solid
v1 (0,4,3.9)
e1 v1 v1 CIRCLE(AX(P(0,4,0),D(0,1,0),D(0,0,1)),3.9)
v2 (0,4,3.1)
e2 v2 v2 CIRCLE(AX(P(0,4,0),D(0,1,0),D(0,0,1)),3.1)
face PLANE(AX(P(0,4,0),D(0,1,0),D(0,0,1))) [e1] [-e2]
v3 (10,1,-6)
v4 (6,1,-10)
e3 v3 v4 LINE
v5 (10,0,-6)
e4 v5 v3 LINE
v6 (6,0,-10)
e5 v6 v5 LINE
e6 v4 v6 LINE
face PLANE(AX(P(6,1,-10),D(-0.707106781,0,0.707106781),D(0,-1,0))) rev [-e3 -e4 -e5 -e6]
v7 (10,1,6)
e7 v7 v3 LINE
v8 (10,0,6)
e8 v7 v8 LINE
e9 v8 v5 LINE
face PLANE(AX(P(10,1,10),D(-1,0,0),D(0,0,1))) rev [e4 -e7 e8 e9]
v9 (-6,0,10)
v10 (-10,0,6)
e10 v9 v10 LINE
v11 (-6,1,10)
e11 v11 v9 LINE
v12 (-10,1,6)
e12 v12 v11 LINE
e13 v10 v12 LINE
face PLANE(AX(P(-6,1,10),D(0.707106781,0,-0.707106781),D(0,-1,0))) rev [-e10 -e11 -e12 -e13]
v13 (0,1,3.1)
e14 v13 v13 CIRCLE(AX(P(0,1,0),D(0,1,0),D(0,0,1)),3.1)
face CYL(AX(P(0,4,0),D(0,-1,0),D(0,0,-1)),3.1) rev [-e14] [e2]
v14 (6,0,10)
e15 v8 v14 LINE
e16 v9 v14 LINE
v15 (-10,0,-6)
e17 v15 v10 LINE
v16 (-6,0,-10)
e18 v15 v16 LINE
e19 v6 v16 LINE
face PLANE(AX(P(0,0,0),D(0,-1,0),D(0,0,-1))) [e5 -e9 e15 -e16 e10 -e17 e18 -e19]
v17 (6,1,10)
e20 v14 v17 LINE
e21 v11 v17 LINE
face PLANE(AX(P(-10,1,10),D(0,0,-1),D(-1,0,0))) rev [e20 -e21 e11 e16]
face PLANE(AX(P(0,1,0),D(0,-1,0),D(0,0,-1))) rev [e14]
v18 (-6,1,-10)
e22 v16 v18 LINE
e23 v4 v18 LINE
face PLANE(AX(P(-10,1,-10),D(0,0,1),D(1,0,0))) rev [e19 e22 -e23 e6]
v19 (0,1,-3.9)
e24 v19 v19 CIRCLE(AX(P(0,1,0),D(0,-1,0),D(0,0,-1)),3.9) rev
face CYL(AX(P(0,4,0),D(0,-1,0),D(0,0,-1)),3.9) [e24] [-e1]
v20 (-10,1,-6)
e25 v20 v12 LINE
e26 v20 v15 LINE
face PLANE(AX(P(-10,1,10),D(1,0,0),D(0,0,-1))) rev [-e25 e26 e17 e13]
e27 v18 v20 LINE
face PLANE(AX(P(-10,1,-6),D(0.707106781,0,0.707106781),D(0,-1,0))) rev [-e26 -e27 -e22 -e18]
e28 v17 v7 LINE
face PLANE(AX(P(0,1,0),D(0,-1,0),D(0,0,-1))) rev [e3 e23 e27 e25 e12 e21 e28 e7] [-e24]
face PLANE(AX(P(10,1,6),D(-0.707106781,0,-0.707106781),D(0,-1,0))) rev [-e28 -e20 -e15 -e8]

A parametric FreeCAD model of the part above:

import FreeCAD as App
import Part
import Sketcher

V = App.Vector


def edges_at(feature, points):
    """Names of the edges that pass closest to the given points."""
    edges = feature.Shape.Edges
    near = lambda p: min(range(len(edges)), key=lambda i: edges[i].distToShape(Part.Vertex(*p))[0])
    return sorted({f"Edge{near(p) + 1}" for p in points})


def add_polygon(sketch, points):
    """Adds a closed chain of lines whose ends are joined by coincident constraints."""
    first, n = sketch.GeometryCount, len(points)
    for a, b in zip(points, points[1:] + points[:1]):
        sketch.addGeometry(Part.LineSegment(App.Vector(*a, 0), App.Vector(*b, 0)), False)
    for i in range(n):
        sketch.addConstraint(Sketcher.Constraint("Coincident", first + i, 2, first + (i + 1) % n, 1))

doc = App.newDocument("Part")
body = doc.addObject("PartDesign::Body", "Body")

sketch1 = body.newObject("Sketcher::SketchObject", "Sketch")
sketch1.AttachmentSupport = (doc.getObject("XZ_Plane"), [""])
sketch1.MapMode = "FlatFace"
add_polygon(sketch1, [(-10, -10), (-10, 10), (10, 10), (10, -10)])
sketch1.addConstraint([
    Sketcher.Constraint("Vertical", 0),
    Sketcher.Constraint("Horizontal", 1),
    Sketcher.Constraint("Vertical", 2),
    Sketcher.Constraint("Horizontal", 3),
    Sketcher.Constraint("Symmetric", 0, 2, 2, 2, -1, 1),
    Sketcher.Constraint("Equal", 3, 0),
    Sketcher.Constraint("DistanceX", 1, 1, 1, 2, 20.0),
])
pad1 = body.newObject("PartDesign::Pad", "Pad")
pad1.Profile = sketch1
pad1.Length = 1
pad1.Reversed = True

sketch2 = body.newObject("Sketcher::SketchObject", "Sketch001")
sketch2.AttachmentSupport = (doc.getObject("XZ_Plane"), [""])
sketch2.MapMode = "FlatFace"
sketch2.AttachmentOffset = App.Placement(V(0, 0, -1), App.Rotation())
sketch2.addGeometry([
    Part.Circle(V(0, 0, 0), V(0, 0, 1), 3.9),
    Part.Circle(V(0, 0, 0), V(0, 0, 1), 3.1),
], False)
sketch2.addConstraint([
    Sketcher.Constraint("Coincident", 0, 3, -1, 1),
    Sketcher.Constraint("Coincident", 1, 3, -1, 1),
    Sketcher.Constraint("Diameter", 0, 7.8),
    Sketcher.Constraint("Diameter", 1, 6.2),
])
pad2 = body.newObject("PartDesign::Pad", "Pad001")
pad2.Profile = sketch2
pad2.Length = 3
pad2.Reversed = True
doc.recompute()

chamfer = body.newObject("PartDesign::Chamfer", "Chamfer")
chamfer.Base = (pad2, edges_at(pad2, [
    (10, 0.5, 10),
    (-10, 0.5, 10),
    (-10, 0.5, -10),
    (10, 0.5, -10),
]))
chamfer.Size = 4

doc.recompute()
